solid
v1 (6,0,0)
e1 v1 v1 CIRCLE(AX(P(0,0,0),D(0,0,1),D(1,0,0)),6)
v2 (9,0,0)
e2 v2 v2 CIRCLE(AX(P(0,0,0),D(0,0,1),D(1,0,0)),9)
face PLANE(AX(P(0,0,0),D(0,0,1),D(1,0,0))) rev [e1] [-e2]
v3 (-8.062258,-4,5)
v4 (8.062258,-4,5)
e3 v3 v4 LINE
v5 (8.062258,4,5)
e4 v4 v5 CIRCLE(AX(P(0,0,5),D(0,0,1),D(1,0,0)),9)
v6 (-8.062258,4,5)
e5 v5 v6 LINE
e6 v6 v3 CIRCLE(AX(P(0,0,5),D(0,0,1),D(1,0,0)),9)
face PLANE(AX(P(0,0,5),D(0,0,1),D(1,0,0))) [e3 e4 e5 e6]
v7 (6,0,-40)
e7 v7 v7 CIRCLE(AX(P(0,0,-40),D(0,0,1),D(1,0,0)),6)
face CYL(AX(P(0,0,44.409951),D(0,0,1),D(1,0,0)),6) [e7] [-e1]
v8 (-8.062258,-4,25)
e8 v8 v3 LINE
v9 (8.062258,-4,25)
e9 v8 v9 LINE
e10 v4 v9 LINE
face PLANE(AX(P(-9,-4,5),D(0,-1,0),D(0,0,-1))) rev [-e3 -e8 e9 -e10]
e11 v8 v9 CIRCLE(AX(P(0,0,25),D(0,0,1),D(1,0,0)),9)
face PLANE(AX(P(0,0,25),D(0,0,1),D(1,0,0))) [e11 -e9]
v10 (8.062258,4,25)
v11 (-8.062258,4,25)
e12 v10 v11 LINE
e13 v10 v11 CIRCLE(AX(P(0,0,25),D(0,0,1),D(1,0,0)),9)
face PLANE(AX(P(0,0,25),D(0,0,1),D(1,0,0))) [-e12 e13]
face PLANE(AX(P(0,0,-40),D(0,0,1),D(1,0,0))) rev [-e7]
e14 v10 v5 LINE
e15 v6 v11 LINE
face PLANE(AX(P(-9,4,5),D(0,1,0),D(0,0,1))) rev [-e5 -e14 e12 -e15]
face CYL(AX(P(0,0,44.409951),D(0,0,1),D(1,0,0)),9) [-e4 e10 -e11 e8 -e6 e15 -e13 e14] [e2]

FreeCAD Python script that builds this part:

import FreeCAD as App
import Part
import Sketcher

V = App.Vector


def add_polygon(sketch, points):
    """Adds a closed chain of lines whose ends are joined by coincident constraints."""
    first, n = sketch.GeometryCount, len(points)
    for a, b in zip(points, points[1:] + points[:1]):
        sketch.addGeometry(Part.LineSegment(App.Vector(*a, 0), App.Vector(*b, 0)), False)
    for i in range(n):
        sketch.addConstraint(Sketcher.Constraint("Coincident", first + i, 2, first + (i + 1) % n, 1))

doc = App.newDocument("Part")
body = doc.addObject("PartDesign::Body", "Body")

# Sketch on XZ plane
sketch1 = body.newObject("Sketcher::SketchObject", "Sketch")
sketch1.AttachmentSupport = (doc.getObject("XZ_Plane"), [""])
sketch1.MapMode = "FlatFace"
add_polygon(sketch1, [(0, -40), (0, 25), (9, 25), (9, 0), (6, 0), (6, -40)])  # lines 0-5
sketch1.addConstraint([
    Sketcher.Constraint("Vertical", 0),
    Sketcher.Constraint("Horizontal", 1),
    Sketcher.Constraint("Vertical", 2),
    Sketcher.Constraint("Horizontal", 3),
    Sketcher.Constraint("Vertical", 4),
    Sketcher.Constraint("Horizontal", 5),
    Sketcher.Constraint("PointOnObject", 0, 2, -2),
    Sketcher.Constraint("PointOnObject", 2, 2, -1),
    Sketcher.Constraint("DistanceX", 1, 1, 1, 2, 9.0),
    Sketcher.Constraint("DistanceX", 3, 2, 3, 1, 3.0),
    Sketcher.Constraint("DistanceY", 0, 1, 0, 2, 65.0),
    Sketcher.Constraint("DistanceY", 2, 2, 2, 1, 25.0),
])
revolution = body.newObject("PartDesign::Revolution", "Revolution")
revolution.Profile = sketch1
revolution.ReferenceAxis = (sketch1, ["V_Axis"])
revolution.Angle = 360

# Sketch on XY plane
sketch2 = body.newObject("Sketcher::SketchObject", "Sketch001")
sketch2.AttachmentSupport = (doc.getObject("XY_Plane"), [""])
sketch2.MapMode = "FlatFace"
sketch2.AttachmentOffset = App.Placement(V(0, 0, 25), App.Rotation())
add_polygon(sketch2, [(-9, 4), (-9, -4), (9, -4), (9, 4)])  # lines 0-3
sketch2.addConstraint([
    Sketcher.Constraint("Vertical", 0),
    Sketcher.Constraint("Horizontal", 1),
    Sketcher.Constraint("Vertical", 2),
    Sketcher.Constraint("Horizontal", 3),
    Sketcher.Constraint("Symmetric", 0, 2, 2, 2, -1, 1),
    Sketcher.Constraint("DistanceX", 1, 1, 1, 2, 18.0),
    Sketcher.Constraint("DistanceY", 0, 2, 0, 1, 8.0),
])
pocket1 = body.newObject("PartDesign::Pocket", "Pocket")
pocket1.Profile = sketch2
pocket1.Length = 20

doc.recompute()
